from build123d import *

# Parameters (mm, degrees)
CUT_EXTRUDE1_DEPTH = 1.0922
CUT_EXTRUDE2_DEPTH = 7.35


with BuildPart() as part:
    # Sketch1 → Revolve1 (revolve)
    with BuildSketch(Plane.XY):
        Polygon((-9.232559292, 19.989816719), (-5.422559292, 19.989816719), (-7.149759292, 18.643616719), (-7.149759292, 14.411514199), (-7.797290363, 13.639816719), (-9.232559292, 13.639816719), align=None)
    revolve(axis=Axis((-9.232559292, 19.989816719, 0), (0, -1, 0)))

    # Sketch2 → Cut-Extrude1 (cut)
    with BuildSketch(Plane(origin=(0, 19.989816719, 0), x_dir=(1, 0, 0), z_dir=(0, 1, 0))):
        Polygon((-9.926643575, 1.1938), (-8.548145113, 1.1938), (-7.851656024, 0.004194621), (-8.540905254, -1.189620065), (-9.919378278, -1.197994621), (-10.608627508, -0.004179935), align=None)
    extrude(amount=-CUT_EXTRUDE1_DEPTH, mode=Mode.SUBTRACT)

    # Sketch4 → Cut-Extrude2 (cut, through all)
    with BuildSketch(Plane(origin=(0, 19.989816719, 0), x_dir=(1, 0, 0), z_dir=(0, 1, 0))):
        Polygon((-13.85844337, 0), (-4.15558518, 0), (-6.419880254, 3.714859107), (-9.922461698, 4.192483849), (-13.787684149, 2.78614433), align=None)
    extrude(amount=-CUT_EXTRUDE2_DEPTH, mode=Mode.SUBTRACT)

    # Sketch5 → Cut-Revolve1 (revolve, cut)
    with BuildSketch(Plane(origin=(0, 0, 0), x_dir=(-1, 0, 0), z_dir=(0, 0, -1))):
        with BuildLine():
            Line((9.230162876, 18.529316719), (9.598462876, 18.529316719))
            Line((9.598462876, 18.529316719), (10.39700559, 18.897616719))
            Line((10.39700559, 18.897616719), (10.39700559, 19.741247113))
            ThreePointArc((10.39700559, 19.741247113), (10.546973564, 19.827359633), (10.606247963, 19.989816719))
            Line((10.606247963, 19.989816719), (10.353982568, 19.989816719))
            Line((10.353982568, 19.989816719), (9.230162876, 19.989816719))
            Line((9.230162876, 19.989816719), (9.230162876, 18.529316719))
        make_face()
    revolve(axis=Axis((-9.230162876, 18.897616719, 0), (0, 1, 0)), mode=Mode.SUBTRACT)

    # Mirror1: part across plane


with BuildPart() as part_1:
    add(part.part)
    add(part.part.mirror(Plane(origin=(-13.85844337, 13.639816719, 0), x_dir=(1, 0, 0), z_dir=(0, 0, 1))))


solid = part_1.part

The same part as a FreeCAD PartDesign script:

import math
import FreeCAD as App
import Part
import Sketcher

V = App.Vector
Q = App.Units.Quantity


def add_polygon(sketch, points):
    """Adds a closed chain of lines whose ends are joined by coincident constraints."""
    first, n = sketch.GeometryCount, len(points)
    for a, b in zip(points, points[1:] + points[:1]):
        sketch.addGeometry(Part.LineSegment(App.Vector(*a, 0), App.Vector(*b, 0)), False)
    for i in range(n):
        sketch.addConstraint(Sketcher.Constraint("Coincident", first + i, 2, first + (i + 1) % n, 1))

doc = App.newDocument("Part")
body = doc.addObject("PartDesign::Body", "Body")

# Sketch on XY plane
sketch1 = body.newObject("Sketcher::SketchObject", "Sketch")
sketch1.AttachmentSupport = (doc.getObject("XY_Plane"), [""])
sketch1.MapMode = "FlatFace"
add_polygon(sketch1, [(-5.4, 20), (-9.2, 20), (-9.2, 13.6), (-7.8, 13.6), (-7.1, 14.4), (-7.1, 18.6)])  # lines 0-5
sketch1.addGeometry(Part.LineSegment(V(-9.2, 20, 0), V(-9.2, 13.6, 0)), True)  # axis
sketch1.addConstraint(Sketcher.Constraint("Horizontal", 0))
sketch1.addConstraint(Sketcher.Constraint("Vertical", 1))
sketch1.addConstraint(Sketcher.Constraint("Horizontal", 2))
sketch1.addConstraint(Sketcher.Constraint("Vertical", 4))
sketch1.addConstraint(Sketcher.Constraint("Vertical", 6))
sketch1.addConstraint(Sketcher.Constraint("Coincident", 6, 1, 0, 2))
sketch1.addConstraint(Sketcher.Constraint("Horizontal", 2, 2, 6, 2))
sketch1.addConstraint(Sketcher.Constraint("Angle", 3, Q("50 deg")))
sketch1.addConstraint(Sketcher.Constraint("DistanceX", 0, 2, 0, 1, Q("0.15 in")))
sketch1.addConstraint(Sketcher.Constraint("DistanceY", 1, 2, 1, 1, Q("0.25 in")))
sketch1.addConstraint(Sketcher.Constraint("DistanceX", 1, 2, 3, 2, Q("0.082 in")))
sketch1.addConstraint(Sketcher.Constraint("DistanceY", 4, 2, 0, 2, Q("0.053 in")))
sketch1.addConstraint(Sketcher.Constraint("DistanceX", 2, 1, 2, 2, 1.435269))
sketch1.addConstraint(Sketcher.Constraint("DistanceX", 0, 2, -1, 1, 9.232559))
sketch1.addConstraint(Sketcher.Constraint("DistanceY", -1, 1, 0, 2, 19.989817))
revolution = body.newObject("PartDesign::Revolution", "Revolution")
revolution.Profile = sketch1
revolution.ReferenceAxis = (sketch1, ["Axis0"])
revolution.Angle = 360

# Sketch on XZ plane
sketch2 = body.newObject("Sketcher::SketchObject", "Sketch001")
sketch2.AttachmentSupport = (doc.getObject("XZ_Plane"), [""])
sketch2.MapMode = "FlatFace"
sketch2.AttachmentOffset = App.Placement(V(0, 0, -19.989817), App.Rotation())
add_polygon(sketch2, [(-8.5, -1.2), (-9.9, -1.2), (-10.6, 0), (-9.9, 1.2), (-8.5, 1.2), (-7.9, 0)])  # lines 0-5
sketch2.addConstraint(Sketcher.Constraint("Horizontal", 0))
sketch2.addConstraint(Sketcher.Constraint("Equal", 1, 2))
sketch2.addConstraint(Sketcher.Constraint("Equal", 2, 3))
sketch2.addConstraint(Sketcher.Constraint("Equal", 3, 4))
sketch2.addConstraint(Sketcher.Constraint("Equal", 4, 5))
sketch2.addConstraint(Sketcher.Constraint("Angle", 2, Q("60 deg")))
sketch2.addConstraint(Sketcher.Constraint("Angle", 4, Q("-60 deg")))
sketch2.addConstraint(Sketcher.Constraint("DistanceY", 0, 2, -1, 1, Q("0.047 in")))
sketch2.addConstraint(Sketcher.Constraint("DistanceX", 0, 2, 0, 1, 1.378498))
sketch2.addConstraint(Sketcher.Constraint("Distance", 1, 1.378498))
sketch2.addConstraint(Sketcher.Constraint("DistanceY", -1, 1, 1, 2, 0.00418))
sketch2.addConstraint(Sketcher.Constraint("DistanceX", 2, 2, -1, 1, 9.919378))
pocket1 = body.newObject("PartDesign::Pocket", "Pocket")
pocket1.Profile = sketch2
pocket1.Length = Q("0.043 in")
pocket1.Reversed = True

# Sketch on XZ plane
sketch3 = body.newObject("Sketcher::SketchObject", "Sketch002")
sketch3.AttachmentSupport = (doc.getObject("XZ_Plane"), [""])
sketch3.MapMode = "FlatFace"
sketch3.AttachmentOffset = App.Placement(V(0, 0, -19.989817), App.Rotation())
add_polygon(sketch3, [(-13.9, 0), (-4.2, 0), (-6.4, -3.7), (-9.9, -4.2), (-13.8, -2.8)])  # lines 0-4
sketch3.addConstraint(Sketcher.Constraint("Horizontal", 0))
sketch3.addConstraint(Sketcher.Constraint("PointOnObject", 0, 2, -1))
sketch3.addConstraint(Sketcher.Constraint("DistanceX", 0, 1, 0, 2, 9.702858))
sketch3.addConstraint(Sketcher.Constraint("DistanceX", 3, 2, 0, 2, 9.632099))
sketch3.addConstraint(Sketcher.Constraint("Distance", 1, 4.350541))
sketch3.addConstraint(Sketcher.Constraint("DistanceX", 1, 2, -1, 1, 6.41988))
sketch3.addConstraint(Sketcher.Constraint("DistanceY", 1, 2, -1, 1, 3.714859))
sketch3.addConstraint(Sketcher.Constraint("DistanceX", 2, 2, -1, 1, 9.922462))
sketch3.addConstraint(Sketcher.Constraint("DistanceY", 2, 2, 3, 2, 1.40634))
sketch3.addConstraint(Sketcher.Constraint("Distance", 2, 3.534997))
pocket2 = body.newObject("PartDesign::Pocket", "Pocket001")
pocket2.Profile = sketch3
pocket2.Type = "ThroughAll"
pocket2.Reversed = True

# Sketch on XY plane
sketch4 = body.newObject("Sketcher::SketchObject", "Sketch003")
sketch4.AttachmentSupport = (doc.getObject("XY_Plane"), [""])
sketch4.MapMode = "FlatFace"
sketch4.addGeometry(Part.LineSegment(V(-9.23, 18.53, 0), V(-9.6, 18.53, 0)), False)
sketch4.addGeometry(Part.LineSegment(V(-9.6, 18.53, 0), V(-10.4, 18.9, 0)), False)
sketch4.addGeometry(Part.LineSegment(V(-10.4, 18.9, 0), V(-10.4, 19.74, 0)), False)
sketch4.addGeometry(Part.ArcOfCircle(Part.Circle(V(-10.35, 19.99, 0), V(0, 0, 1), 0.25), math.radians(-180), math.radians(-100)), False)
sketch4.addGeometry(Part.LineSegment(V(-10.61, 19.99, 0), V(-9.23, 19.99, 0)), False)
sketch4.addGeometry(Part.LineSegment(V(-9.23, 19.99, 0), V(-9.23, 18.53, 0)), False)
sketch4.addGeometry(Part.LineSegment(V(-9.23, 18.53, 0), V(-9.23, 19.99, 0)), True)  # axis
sketch4.addConstraint(Sketcher.Constraint("Coincident", 0, 2, 1, 1))
sketch4.addConstraint(Sketcher.Constraint("Coincident", 1, 2, 2, 1))
sketch4.addConstraint(Sketcher.Constraint("Coincident", 2, 2, 3, 2))
sketch4.addConstraint(Sketcher.Constraint("Coincident", 3, 1, 4, 1))
sketch4.addConstraint(Sketcher.Constraint("Coincident", 4, 2, 5, 1))
sketch4.addConstraint(Sketcher.Constraint("Coincident", 5, 2, 0, 1))
sketch4.addConstraint(Sketcher.Constraint("Horizontal", 0))
sketch4.addConstraint(Sketcher.Constraint("Vertical", 2))
sketch4.addConstraint(Sketcher.Constraint("Horizontal", 4))
sketch4.addConstraint(Sketcher.Constraint("Vertical", 5))
sketch4.addConstraint(Sketcher.Constraint("Vertical", 6))
sketch4.addConstraint(Sketcher.Constraint("Coincident", 6, 1, 5, 2))
sketch4.addConstraint(Sketcher.Constraint("Horizontal", 3, 1, 6, 2))
sketch4.addConstraint(Sketcher.Constraint("DistanceX", 0, 2, 0, 1, Q("0.0145 in")))
sketch4.addConstraint(Sketcher.Constraint("DistanceY", 5, 2, 5, 1, Q("0.0575 in")))
sketch4.addConstraint(Sketcher.Constraint("DistanceY", 1, 2, 3, 3, Q("0.043 in")))
sketch4.addConstraint(Sketcher.Constraint("DistanceY", 1, 2, 3, 1, Q("0.043 in")))
sketch4.addConstraint(Sketcher.Constraint("Radius", 3, 0.252265))
sketch4.addConstraint(Sketcher.Constraint("DistanceY", 2, 1, 2, 2, 0.84363))
sketch4.addConstraint(Sketcher.Constraint("DistanceX", 4, 1, 4, 2, 1.376085))
sketch4.addConstraint(Sketcher.Constraint("DistanceX", 3, 3, -1, 1, 10.353983))
sketch4.addConstraint(Sketcher.Constraint("DistanceY", -1, 1, 3, 3, 19.989817))
groove = body.newObject("PartDesign::Groove", "Groove")
groove.Profile = sketch4
groove.ReferenceAxis = (sketch4, ["Axis0"])
groove.Angle = 360
body2 = doc.addObject("PartDesign::Body", "Body001")
doc.recompute()

body2.BaseFeature = body
doc.recompute()

mirroring = doc.addObject("Part::Mirroring", "Mirroring")
mirroring.Source = body
mirroring.Base = V(-13.858443, 13.639817, 0)
mirroring.Normal = V(0, 0, 1)
body3 = doc.addObject("PartDesign::Body", "Body002")
body3.BaseFeature = mirroring
boolean = body2.newObject("PartDesign::Boolean", "Boolean")
boolean.Type = "Fuse"
boolean.addObjects([body3])
doc.recompute()
mirroring.Visibility = False

doc.recompute()
